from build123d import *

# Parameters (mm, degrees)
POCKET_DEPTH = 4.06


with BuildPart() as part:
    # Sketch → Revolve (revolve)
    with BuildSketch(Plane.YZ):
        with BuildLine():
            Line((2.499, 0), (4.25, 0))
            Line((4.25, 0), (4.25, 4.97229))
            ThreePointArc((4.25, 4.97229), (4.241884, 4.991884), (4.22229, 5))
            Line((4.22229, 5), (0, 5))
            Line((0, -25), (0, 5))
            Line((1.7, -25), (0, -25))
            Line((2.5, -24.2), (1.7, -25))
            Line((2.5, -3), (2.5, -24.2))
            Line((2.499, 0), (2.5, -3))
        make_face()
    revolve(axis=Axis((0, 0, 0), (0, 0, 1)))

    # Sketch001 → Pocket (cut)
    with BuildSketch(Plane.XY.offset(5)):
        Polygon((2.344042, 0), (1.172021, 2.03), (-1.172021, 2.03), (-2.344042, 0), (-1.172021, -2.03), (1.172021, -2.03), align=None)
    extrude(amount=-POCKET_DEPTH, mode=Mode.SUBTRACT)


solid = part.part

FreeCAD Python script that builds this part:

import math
import FreeCAD as App
import Part
import Sketcher

V = App.Vector
Q = App.Units.Quantity


def add_polygon(sketch, points):
    """Adds a closed chain of lines whose ends are joined by coincident constraints."""
    first, n = sketch.GeometryCount, len(points)
    for a, b in zip(points, points[1:] + points[:1]):
        sketch.addGeometry(Part.LineSegment(App.Vector(*a, 0), App.Vector(*b, 0)), False)
    for i in range(n):
        sketch.addConstraint(Sketcher.Constraint("Coincident", first + i, 2, first + (i + 1) % n, 1))

doc = App.newDocument("Part")
body = doc.addObject("PartDesign::Body", "Body")

# Sketch on YZ plane
sketch1 = body.newObject("Sketcher::SketchObject", "Sketch")
sketch1.AttachmentSupport = (doc.getObject("YZ_Plane"), [""])
sketch1.MapMode = "FlatFace"
sketch1.addGeometry([
    Part.LineSegment(V(2.499, 0, 0), V(4.25, 0, 0)),  # 0
    Part.LineSegment(V(4.25, 0, 0), V(4.25, 4.97229, 0)),  # 1
    Part.ArcOfCircle(Part.Circle(V(4.22229, 4.97229, 0), V(0, 0, 1), 0.02771), math.radians(-0.000502), math.radians(90.000502)),  # 2
    Part.LineSegment(V(4.22229, 5, 0), V(0, 5, 0)),  # 3
    Part.LineSegment(V(0, 5, 0), V(0, -25, 0)),  # 4
    Part.LineSegment(V(0, -25, 0), V(1.7, -25, 0)),  # 5
    Part.LineSegment(V(1.7, -25, 0), V(2.5, -24.2, 0)),  # 6
    Part.LineSegment(V(2.5, -24.2, 0), V(2.5, -3, 0)),  # 7
    Part.LineSegment(V(2.5, -3, 0), V(2.499, 0, 0)),  # 8
], False)
sketch1.addConstraint([
    Sketcher.Constraint("Coincident", 0, 2, 1, 1),
    Sketcher.Constraint("Coincident", 1, 2, 2, 1),
    Sketcher.Constraint("Coincident", 2, 2, 3, 1),
    Sketcher.Constraint("Coincident", 3, 2, 4, 1),
    Sketcher.Constraint("Coincident", 4, 2, 5, 1),
    Sketcher.Constraint("Coincident", 5, 2, 6, 1),
    Sketcher.Constraint("Coincident", 6, 2, 7, 1),
    Sketcher.Constraint("Coincident", 7, 2, 8, 1),
    Sketcher.Constraint("Coincident", 8, 2, 0, 1),
    Sketcher.Constraint("Horizontal", 0),
    Sketcher.Constraint("Vertical", 1),
    Sketcher.Constraint("Horizontal", 3),
    Sketcher.Constraint("Vertical", 4),
    Sketcher.Constraint("Horizontal", 5),
    Sketcher.Constraint("Vertical", 7),
    Sketcher.Constraint("PointOnObject", 0, 2, -1),
    Sketcher.Constraint("PointOnObject", 3, 2, -2),
    Sketcher.Constraint("Horizontal", 2, 3, 1, 2),
    Sketcher.Constraint("DistanceY", 4, 2, 4, 1, Q("30 mm")),
    Sketcher.Constraint("Angle", 6, Q("45 deg")),
    Sketcher.Constraint("Distance", 8, Q("3 mm")),
    Sketcher.Constraint("DistanceX", 5, 1, 5, 2, Q("1.7 mm")),
    Sketcher.Constraint("DistanceY", 7, 1, 7, 2, Q("21.2 mm")),
    Sketcher.Constraint("DistanceY", -1, 1, 2, 2, Q("5 mm")),
    Sketcher.Constraint("DistanceX", 0, 1, 0, 2, Q("1.751 mm")),
    Sketcher.Constraint("DistanceX", -1, 1, 0, 2, Q("4.25 mm")),
    Sketcher.Constraint("Radius", 2, Q("0.02771 mm")),
    Sketcher.Constraint("DistanceX", 3, 2, 3, 1, Q("4.22229 mm")),
])
revolution = body.newObject("PartDesign::Revolution", "Revolution")
revolution.Profile = sketch1
revolution.ReferenceAxis = (sketch1, ["V_Axis"])
revolution.Angle = 360

# Sketch on XY plane
sketch2 = body.newObject("Sketcher::SketchObject", "Sketch001")
sketch2.AttachmentSupport = (doc.getObject("XY_Plane"), [""])
sketch2.MapMode = "FlatFace"
sketch2.AttachmentOffset = App.Placement(V(0, 0, 5), App.Rotation())
add_polygon(sketch2, [(2.344042, 0), (1.172021, 2.03), (-1.172021, 2.03), (-2.344042, 0), (-1.172021, -2.03), (1.172021, -2.03)])  # lines 0-5
sketch2.addConstraint([
    Sketcher.Constraint("Horizontal", 1),
    Sketcher.Constraint("Horizontal", 4),
    Sketcher.Constraint("Symmetric", 0, 2, 3, 2, -1, 1),
    Sketcher.Constraint("Symmetric", 2, 2, 5, 2, -1, 1),
    Sketcher.Constraint("PointOnObject", 2, 2, -1),
    Sketcher.Constraint("Parallel", 2, 5),
    Sketcher.Constraint("Vertical", 1, 2, 3, 2),
    Sketcher.Constraint("Angle", 0, Q("119.999999 deg")),
    Sketcher.Constraint("DistanceY", -1, 1, 0, 2, Q("2.03 mm")),
    Sketcher.Constraint("DistanceX", 1, 2, 1, 1, Q("2.344042 mm")),
])
pocket1 = body.newObject("PartDesign::Pocket", "Pocket")
pocket1.Profile = sketch2
pocket1.Length = 4.06

doc.recompute()
